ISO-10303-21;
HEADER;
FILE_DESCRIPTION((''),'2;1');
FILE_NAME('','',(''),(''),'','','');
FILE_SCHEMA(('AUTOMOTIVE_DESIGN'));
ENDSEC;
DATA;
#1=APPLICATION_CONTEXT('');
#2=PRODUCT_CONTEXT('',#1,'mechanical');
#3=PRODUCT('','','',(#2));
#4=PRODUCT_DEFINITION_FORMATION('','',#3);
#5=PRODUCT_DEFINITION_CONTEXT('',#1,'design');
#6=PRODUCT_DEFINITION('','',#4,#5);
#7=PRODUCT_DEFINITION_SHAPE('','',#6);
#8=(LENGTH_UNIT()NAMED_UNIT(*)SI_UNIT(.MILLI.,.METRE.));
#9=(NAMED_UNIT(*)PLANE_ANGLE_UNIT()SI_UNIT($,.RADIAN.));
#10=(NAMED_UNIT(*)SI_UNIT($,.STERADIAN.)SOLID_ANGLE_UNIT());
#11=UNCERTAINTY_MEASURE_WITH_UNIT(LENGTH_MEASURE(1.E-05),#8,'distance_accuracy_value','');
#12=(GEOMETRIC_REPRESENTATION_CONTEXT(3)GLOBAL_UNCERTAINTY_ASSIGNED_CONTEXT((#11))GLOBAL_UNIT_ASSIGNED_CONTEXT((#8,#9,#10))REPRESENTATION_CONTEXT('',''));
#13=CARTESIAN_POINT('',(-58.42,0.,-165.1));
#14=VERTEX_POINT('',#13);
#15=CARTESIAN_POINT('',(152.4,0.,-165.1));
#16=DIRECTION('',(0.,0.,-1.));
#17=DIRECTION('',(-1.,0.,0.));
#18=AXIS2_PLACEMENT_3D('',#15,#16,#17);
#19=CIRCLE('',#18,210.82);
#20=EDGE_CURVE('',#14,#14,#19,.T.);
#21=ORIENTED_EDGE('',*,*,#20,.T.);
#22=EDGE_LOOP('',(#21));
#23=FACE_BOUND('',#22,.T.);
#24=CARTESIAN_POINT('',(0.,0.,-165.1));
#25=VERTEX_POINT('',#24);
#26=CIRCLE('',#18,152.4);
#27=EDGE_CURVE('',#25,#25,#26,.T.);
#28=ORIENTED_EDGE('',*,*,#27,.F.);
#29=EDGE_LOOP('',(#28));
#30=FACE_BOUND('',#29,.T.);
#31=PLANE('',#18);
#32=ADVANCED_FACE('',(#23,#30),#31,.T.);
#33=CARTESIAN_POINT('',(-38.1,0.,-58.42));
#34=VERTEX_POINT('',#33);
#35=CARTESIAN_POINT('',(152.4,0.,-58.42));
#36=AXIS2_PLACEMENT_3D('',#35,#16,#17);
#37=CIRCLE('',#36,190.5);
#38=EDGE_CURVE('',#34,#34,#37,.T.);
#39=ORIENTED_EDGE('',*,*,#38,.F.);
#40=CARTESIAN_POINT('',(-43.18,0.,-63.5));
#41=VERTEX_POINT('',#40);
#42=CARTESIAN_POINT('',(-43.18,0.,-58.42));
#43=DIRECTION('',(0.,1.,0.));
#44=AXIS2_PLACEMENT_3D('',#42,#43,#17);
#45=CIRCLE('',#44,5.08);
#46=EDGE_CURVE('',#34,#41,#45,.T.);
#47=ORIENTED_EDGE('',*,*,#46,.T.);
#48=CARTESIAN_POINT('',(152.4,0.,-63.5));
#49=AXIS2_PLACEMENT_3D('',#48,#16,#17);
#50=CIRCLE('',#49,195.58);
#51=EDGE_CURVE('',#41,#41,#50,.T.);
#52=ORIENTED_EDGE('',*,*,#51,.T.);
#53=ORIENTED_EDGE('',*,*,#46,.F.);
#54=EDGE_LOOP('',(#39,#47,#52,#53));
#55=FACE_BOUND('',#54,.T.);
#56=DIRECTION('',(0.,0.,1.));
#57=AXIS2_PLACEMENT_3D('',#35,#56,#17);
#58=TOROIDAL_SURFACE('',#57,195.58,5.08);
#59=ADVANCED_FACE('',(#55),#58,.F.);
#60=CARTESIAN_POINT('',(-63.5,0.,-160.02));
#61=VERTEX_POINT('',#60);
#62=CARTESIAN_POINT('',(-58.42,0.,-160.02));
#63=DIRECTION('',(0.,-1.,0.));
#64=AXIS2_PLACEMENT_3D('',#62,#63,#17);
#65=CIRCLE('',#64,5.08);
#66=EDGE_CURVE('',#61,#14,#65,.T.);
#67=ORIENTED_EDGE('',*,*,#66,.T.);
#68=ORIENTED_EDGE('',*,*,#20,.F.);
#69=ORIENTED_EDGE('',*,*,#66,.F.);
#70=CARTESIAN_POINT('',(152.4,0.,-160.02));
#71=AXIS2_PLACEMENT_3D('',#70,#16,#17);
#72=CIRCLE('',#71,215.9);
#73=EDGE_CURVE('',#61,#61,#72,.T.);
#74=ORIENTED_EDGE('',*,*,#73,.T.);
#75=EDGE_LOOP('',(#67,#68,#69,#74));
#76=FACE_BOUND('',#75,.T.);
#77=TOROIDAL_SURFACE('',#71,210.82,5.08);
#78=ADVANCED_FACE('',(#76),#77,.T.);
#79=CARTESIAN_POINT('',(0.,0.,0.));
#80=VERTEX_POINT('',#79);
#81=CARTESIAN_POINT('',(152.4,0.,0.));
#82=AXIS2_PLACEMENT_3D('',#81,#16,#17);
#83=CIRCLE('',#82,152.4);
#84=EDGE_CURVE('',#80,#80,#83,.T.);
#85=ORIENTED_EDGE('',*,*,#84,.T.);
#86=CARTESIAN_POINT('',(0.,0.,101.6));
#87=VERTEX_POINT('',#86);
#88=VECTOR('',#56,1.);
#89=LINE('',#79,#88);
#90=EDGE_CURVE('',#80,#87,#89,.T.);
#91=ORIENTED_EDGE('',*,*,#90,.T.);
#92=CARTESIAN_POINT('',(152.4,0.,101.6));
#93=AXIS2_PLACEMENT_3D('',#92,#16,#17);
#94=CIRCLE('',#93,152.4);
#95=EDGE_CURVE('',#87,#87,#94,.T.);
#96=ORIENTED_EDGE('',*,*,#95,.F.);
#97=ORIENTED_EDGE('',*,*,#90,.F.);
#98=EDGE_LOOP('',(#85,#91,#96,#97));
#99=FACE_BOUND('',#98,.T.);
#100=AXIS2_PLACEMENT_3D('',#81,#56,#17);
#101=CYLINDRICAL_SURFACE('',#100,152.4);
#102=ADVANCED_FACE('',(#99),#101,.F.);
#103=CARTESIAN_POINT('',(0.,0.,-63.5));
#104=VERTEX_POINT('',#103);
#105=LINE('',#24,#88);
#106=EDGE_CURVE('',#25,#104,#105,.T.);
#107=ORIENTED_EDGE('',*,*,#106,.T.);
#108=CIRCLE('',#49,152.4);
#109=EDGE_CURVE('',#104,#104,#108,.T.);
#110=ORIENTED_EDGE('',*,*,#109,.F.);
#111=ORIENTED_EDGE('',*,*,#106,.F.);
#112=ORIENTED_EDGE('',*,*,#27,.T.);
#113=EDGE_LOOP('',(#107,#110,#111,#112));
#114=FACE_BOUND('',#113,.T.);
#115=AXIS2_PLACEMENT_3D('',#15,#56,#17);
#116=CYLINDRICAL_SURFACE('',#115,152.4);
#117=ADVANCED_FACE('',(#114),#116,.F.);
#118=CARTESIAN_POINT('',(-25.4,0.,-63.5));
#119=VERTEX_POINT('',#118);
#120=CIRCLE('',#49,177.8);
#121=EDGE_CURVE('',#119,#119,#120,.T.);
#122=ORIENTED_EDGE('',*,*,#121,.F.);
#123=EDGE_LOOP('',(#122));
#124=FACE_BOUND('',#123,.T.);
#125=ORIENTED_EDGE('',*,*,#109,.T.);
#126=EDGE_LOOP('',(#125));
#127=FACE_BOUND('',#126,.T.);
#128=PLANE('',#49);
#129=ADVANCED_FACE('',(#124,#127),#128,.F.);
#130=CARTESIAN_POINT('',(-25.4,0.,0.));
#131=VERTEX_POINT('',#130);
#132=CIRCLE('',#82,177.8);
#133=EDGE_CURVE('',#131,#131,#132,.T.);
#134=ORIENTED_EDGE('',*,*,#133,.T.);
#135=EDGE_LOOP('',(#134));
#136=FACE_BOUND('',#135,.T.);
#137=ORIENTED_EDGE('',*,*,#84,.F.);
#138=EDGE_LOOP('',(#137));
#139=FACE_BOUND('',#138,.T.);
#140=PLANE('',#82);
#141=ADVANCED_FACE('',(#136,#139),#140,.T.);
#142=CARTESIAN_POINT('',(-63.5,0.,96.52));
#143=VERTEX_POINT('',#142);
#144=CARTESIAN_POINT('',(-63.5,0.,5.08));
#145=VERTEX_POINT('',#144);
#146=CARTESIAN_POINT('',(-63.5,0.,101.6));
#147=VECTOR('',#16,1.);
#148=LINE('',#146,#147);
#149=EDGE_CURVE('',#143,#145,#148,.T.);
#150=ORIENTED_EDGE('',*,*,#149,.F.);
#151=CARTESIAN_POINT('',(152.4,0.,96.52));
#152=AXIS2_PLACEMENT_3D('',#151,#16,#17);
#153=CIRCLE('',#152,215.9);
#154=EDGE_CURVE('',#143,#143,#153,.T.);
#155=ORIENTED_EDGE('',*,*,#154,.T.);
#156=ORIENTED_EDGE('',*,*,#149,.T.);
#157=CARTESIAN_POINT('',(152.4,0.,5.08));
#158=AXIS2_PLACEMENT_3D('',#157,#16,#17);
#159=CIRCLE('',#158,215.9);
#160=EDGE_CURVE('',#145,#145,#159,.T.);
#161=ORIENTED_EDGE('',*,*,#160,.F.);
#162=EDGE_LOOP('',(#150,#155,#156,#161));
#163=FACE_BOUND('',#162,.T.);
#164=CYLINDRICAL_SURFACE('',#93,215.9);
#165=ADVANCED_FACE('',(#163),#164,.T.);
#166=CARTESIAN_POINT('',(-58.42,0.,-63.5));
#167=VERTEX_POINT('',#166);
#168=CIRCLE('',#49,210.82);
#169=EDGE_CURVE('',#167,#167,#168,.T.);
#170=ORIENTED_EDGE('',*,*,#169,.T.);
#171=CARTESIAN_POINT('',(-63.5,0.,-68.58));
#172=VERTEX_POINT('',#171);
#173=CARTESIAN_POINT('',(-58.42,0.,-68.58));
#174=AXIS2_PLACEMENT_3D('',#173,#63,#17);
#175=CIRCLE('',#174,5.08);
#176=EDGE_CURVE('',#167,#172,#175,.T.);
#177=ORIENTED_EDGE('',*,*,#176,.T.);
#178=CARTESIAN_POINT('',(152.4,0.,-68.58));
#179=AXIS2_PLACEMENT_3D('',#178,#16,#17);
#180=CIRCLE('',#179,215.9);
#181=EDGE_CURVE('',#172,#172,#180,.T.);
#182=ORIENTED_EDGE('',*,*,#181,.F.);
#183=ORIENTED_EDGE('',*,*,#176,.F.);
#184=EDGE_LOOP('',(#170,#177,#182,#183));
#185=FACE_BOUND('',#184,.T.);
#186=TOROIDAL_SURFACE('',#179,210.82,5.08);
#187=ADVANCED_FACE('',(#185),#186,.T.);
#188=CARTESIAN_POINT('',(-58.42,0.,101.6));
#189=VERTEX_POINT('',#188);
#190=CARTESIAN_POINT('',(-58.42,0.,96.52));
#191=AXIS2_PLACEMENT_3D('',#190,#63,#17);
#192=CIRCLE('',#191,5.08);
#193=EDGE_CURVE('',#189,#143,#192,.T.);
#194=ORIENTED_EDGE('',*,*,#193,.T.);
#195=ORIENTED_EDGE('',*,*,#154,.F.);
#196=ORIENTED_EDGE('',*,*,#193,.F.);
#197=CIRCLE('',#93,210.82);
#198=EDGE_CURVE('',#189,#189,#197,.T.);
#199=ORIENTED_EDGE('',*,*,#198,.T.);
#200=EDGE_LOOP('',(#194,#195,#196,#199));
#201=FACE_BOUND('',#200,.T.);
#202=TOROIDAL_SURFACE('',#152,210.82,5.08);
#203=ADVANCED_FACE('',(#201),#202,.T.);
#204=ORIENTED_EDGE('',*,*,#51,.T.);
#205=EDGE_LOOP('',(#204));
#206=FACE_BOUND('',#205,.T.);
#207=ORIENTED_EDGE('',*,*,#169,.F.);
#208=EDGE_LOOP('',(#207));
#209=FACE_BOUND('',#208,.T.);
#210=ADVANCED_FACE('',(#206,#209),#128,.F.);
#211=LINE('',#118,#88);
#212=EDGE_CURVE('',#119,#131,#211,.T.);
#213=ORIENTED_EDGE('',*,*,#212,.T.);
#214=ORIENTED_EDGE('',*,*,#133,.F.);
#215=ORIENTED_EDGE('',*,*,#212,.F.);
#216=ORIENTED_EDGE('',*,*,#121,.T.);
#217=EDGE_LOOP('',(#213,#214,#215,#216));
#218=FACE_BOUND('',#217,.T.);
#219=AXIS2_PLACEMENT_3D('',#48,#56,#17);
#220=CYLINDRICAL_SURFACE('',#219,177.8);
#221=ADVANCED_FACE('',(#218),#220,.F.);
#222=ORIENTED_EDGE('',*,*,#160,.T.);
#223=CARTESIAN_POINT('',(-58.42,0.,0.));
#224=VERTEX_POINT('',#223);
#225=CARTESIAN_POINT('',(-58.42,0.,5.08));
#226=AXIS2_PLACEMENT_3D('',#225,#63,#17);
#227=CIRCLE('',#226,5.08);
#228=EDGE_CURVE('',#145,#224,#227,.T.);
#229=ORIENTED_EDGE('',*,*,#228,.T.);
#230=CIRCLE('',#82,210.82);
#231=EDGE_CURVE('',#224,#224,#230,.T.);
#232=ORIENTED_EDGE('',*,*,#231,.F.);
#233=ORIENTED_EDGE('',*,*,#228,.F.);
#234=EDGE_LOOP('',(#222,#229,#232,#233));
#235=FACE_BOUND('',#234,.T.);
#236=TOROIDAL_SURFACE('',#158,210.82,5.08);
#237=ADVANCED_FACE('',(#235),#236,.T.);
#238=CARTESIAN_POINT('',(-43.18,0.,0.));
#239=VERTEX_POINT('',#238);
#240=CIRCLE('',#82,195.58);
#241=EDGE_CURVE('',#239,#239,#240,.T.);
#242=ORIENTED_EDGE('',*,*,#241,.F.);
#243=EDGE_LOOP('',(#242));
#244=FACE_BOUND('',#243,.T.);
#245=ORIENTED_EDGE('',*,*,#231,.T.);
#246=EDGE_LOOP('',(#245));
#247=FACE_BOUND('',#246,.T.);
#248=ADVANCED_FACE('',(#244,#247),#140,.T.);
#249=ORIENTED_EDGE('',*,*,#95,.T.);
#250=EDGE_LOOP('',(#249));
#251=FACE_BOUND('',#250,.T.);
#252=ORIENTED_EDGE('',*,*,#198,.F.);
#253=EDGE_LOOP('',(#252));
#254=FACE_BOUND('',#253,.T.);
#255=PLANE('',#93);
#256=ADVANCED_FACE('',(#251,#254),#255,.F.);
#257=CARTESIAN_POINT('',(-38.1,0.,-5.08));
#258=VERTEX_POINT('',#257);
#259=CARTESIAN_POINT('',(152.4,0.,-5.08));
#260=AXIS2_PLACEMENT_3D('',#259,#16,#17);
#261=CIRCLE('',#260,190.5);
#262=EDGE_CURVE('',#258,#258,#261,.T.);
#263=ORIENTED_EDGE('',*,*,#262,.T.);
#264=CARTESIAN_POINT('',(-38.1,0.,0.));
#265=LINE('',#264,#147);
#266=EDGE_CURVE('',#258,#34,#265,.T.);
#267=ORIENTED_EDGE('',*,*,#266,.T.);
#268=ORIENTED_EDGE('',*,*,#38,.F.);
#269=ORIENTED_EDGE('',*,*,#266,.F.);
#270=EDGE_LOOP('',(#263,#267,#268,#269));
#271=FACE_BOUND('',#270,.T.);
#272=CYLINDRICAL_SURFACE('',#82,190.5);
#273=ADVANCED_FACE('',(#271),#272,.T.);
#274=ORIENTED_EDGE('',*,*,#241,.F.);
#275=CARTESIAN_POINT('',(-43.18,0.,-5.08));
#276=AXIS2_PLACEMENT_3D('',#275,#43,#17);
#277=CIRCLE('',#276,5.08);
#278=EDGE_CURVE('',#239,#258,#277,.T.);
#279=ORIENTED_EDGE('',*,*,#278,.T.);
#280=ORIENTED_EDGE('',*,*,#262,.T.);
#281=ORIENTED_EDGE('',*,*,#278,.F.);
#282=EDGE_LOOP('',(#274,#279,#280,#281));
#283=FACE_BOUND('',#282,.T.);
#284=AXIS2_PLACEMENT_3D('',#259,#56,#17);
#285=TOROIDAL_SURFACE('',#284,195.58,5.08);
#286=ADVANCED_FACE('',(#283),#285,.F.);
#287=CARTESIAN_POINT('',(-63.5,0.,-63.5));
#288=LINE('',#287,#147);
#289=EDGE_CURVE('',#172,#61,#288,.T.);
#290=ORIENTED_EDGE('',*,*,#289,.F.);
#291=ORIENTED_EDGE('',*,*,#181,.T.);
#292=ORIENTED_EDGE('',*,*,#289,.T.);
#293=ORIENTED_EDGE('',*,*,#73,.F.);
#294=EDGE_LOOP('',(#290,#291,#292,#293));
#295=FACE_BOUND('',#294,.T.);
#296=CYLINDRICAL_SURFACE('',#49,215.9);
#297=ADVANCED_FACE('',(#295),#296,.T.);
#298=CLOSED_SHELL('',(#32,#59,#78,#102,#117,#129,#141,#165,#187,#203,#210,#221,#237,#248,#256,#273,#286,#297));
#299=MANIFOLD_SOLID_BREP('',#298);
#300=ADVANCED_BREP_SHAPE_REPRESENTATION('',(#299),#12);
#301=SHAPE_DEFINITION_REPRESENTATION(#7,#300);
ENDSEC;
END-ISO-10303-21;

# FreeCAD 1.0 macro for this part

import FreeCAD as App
import Part
import Sketcher
Q = App.Units.Quantity


def edges_at(feature, points):
    """Names of the edges that pass closest to the given points."""
    edges = feature.Shape.Edges
    near = lambda p: min(range(len(edges)), key=lambda i: edges[i].distToShape(Part.Vertex(*p))[0])
    return sorted({f"Edge{near(p) + 1}" for p in points})

doc = App.newDocument("Part")
params = doc.addObject("Spreadsheet::Sheet", "Params")
for row, (alias, value) in enumerate([
    ("sketch1_width", "1 in"),
    ("sketch1_height", "4 in"),
    ("sketch1_width2", "2.5 in"),
    ("revolution_angle", "360 deg"),
    ("fillet_radius", "0.2 in"),
], start=1):
    params.set(f"A{row}", alias)
    params.set(f"B{row}", "=" + value)
    params.setAlias(f"B{row}", alias)

body = doc.addObject("PartDesign::Body", "Body")

# Sketch on XZ plane
sketch1 = body.newObject("Sketcher::SketchObject", "Sketch")
sketch1.AttachmentSupport = (doc.getObject("XZ_Plane"), [""])
sketch1.MapMode = "FlatFace"
sketch1.addGeometry(Part.LineSegment(App.Vector(-25.4, 0, 0), App.Vector(0, 0, 0)), False)
sketch1.addGeometry(Part.LineSegment(App.Vector(0, 0, 0), App.Vector(0, 101.6, 0)), False)
sketch1.addGeometry(Part.LineSegment(App.Vector(0, 101.6, 0), App.Vector(-63.5, 101.6, 0)), False)
sketch1.addGeometry(Part.LineSegment(App.Vector(-63.5, 101.6, 0), App.Vector(-63.5, 0, 0)), False)
sketch1.addGeometry(Part.LineSegment(App.Vector(-63.5, 0, 0), App.Vector(-38.1, 0, 0)), False)
sketch1.addGeometry(Part.LineSegment(App.Vector(-38.1, 0, 0), App.Vector(-38.1, -63.5, 0)), False)
sketch1.addGeometry(Part.LineSegment(App.Vector(-38.1, -63.5, 0), App.Vector(-63.5, -63.5, 0)), False)
sketch1.addGeometry(Part.LineSegment(App.Vector(-63.5, -63.5, 0), App.Vector(-63.5, -165.1, 0)), False)
sketch1.addGeometry(Part.LineSegment(App.Vector(-63.5, -165.1, 0), App.Vector(0, -165.1, 0)), False)
sketch1.addGeometry(Part.LineSegment(App.Vector(0, -165.1, 0), App.Vector(0, -63.5, 0)), False)
sketch1.addGeometry(Part.LineSegment(App.Vector(0, -63.5, 0), App.Vector(-25.4, -63.5, 0)), False)
sketch1.addGeometry(Part.LineSegment(App.Vector(-25.4, -63.5, 0), App.Vector(-25.4, 0, 0)), False)
sketch1.addGeometry(Part.LineSegment(App.Vector(152.4, 101.6, 0), App.Vector(152.4, -165.1, 0)), True)  # axis
sketch1.addConstraint(Sketcher.Constraint("Coincident", 0, 2, 1, 1))
sketch1.addConstraint(Sketcher.Constraint("Coincident", 1, 2, 2, 1))
sketch1.addConstraint(Sketcher.Constraint("Coincident", 2, 2, 3, 1))
sketch1.addConstraint(Sketcher.Constraint("Coincident", 3, 2, 4, 1))
sketch1.addConstraint(Sketcher.Constraint("Coincident", 4, 2, 5, 1))
sketch1.addConstraint(Sketcher.Constraint("Coincident", 5, 2, 6, 1))
sketch1.addConstraint(Sketcher.Constraint("Coincident", 6, 2, 7, 1))
sketch1.addConstraint(Sketcher.Constraint("Coincident", 7, 2, 8, 1))
sketch1.addConstraint(Sketcher.Constraint("Coincident", 8, 2, 9, 1))
sketch1.addConstraint(Sketcher.Constraint("Coincident", 9, 2, 10, 1))
sketch1.addConstraint(Sketcher.Constraint("Coincident", 10, 2, 11, 1))
sketch1.addConstraint(Sketcher.Constraint("Coincident", 11, 2, 0, 1))
sketch1.addConstraint(Sketcher.Constraint("Horizontal", 0))
sketch1.addConstraint(Sketcher.Constraint("Vertical", 1))
sketch1.addConstraint(Sketcher.Constraint("Horizontal", 2))
sketch1.addConstraint(Sketcher.Constraint("Vertical", 3))
sketch1.addConstraint(Sketcher.Constraint("Horizontal", 4))
sketch1.addConstraint(Sketcher.Constraint("Vertical", 5))
sketch1.addConstraint(Sketcher.Constraint("Horizontal", 6))
sketch1.addConstraint(Sketcher.Constraint("Vertical", 7))
sketch1.addConstraint(Sketcher.Constraint("Horizontal", 8))
sketch1.addConstraint(Sketcher.Constraint("Vertical", 9))
sketch1.addConstraint(Sketcher.Constraint("Horizontal", 10))
sketch1.addConstraint(Sketcher.Constraint("Vertical", 11))
sketch1.addConstraint(Sketcher.Constraint("Vertical", 12))
sketch1.addConstraint(Sketcher.Constraint("Coincident", 0, 2, -1, 1))
sketch1.addConstraint(Sketcher.Constraint("PointOnObject", 3, 2, -1))
sketch1.addConstraint(Sketcher.Constraint("PointOnObject", 8, 2, -2))
sketch1.addConstraint(Sketcher.Constraint("Horizontal", 6, 2, 9, 2))
sketch1.addConstraint(Sketcher.Constraint("Horizontal", 2, 2, 12, 1))
sketch1.addConstraint(Sketcher.Constraint("Horizontal", 8, 2, 12, 2))
sketch1.addConstraint(Sketcher.Constraint("Vertical", 3, 2, 6, 2))
sketch1.addConstraint(Sketcher.Constraint("Equal", 0, 4))
sketch1.addConstraint(Sketcher.Constraint("Equal", 8, 5))
sketch1.addConstraint(Sketcher.Constraint("Equal", 3, 7))
sketch1.addConstraint(Sketcher.Constraint("DistanceX", 0, 1, 0, 2, Q("1 in")))
sketch1.addConstraint(Sketcher.Constraint("DistanceY", 1, 1, 1, 2, Q("4 in")))
sketch1.addConstraint(Sketcher.Constraint("DistanceX", 2, 2, 2, 1, Q("2.5 in")))
sketch1.addConstraint(Sketcher.Constraint("DistanceX", -1, 1, 12, 1, Q("6 in")))
sketch1.setExpression("Constraints[35]", "Params.sketch1_width")
sketch1.setExpression("Constraints[36]", "Params.sketch1_height")
sketch1.setExpression("Constraints[37]", "Params.sketch1_width2")
revolution = body.newObject("PartDesign::Revolution", "Revolution")
revolution.Profile = sketch1
revolution.ReferenceAxis = (sketch1, ["Axis0"])
revolution.setExpression("Angle", "Params.revolution_angle")
doc.recompute()

fillet = body.newObject("PartDesign::Fillet", "Fillet")
fillet.Base = (revolution, edges_at(revolution, [
    (342.9, 0, 0),
    (342.9, 0, -63.5),
    (-38.1, 0, -31.75),
    (368.3, 0, 101.6),
    (368.3, 0, 0),
    (-63.5, 0, 50.8),
    (368.3, 0, -63.5),
    (368.3, 0, -165.1),
    (-63.5, 0, -114.3),
]))
fillet.setExpression("Radius", "Params.fillet_radius")

doc.recompute()
